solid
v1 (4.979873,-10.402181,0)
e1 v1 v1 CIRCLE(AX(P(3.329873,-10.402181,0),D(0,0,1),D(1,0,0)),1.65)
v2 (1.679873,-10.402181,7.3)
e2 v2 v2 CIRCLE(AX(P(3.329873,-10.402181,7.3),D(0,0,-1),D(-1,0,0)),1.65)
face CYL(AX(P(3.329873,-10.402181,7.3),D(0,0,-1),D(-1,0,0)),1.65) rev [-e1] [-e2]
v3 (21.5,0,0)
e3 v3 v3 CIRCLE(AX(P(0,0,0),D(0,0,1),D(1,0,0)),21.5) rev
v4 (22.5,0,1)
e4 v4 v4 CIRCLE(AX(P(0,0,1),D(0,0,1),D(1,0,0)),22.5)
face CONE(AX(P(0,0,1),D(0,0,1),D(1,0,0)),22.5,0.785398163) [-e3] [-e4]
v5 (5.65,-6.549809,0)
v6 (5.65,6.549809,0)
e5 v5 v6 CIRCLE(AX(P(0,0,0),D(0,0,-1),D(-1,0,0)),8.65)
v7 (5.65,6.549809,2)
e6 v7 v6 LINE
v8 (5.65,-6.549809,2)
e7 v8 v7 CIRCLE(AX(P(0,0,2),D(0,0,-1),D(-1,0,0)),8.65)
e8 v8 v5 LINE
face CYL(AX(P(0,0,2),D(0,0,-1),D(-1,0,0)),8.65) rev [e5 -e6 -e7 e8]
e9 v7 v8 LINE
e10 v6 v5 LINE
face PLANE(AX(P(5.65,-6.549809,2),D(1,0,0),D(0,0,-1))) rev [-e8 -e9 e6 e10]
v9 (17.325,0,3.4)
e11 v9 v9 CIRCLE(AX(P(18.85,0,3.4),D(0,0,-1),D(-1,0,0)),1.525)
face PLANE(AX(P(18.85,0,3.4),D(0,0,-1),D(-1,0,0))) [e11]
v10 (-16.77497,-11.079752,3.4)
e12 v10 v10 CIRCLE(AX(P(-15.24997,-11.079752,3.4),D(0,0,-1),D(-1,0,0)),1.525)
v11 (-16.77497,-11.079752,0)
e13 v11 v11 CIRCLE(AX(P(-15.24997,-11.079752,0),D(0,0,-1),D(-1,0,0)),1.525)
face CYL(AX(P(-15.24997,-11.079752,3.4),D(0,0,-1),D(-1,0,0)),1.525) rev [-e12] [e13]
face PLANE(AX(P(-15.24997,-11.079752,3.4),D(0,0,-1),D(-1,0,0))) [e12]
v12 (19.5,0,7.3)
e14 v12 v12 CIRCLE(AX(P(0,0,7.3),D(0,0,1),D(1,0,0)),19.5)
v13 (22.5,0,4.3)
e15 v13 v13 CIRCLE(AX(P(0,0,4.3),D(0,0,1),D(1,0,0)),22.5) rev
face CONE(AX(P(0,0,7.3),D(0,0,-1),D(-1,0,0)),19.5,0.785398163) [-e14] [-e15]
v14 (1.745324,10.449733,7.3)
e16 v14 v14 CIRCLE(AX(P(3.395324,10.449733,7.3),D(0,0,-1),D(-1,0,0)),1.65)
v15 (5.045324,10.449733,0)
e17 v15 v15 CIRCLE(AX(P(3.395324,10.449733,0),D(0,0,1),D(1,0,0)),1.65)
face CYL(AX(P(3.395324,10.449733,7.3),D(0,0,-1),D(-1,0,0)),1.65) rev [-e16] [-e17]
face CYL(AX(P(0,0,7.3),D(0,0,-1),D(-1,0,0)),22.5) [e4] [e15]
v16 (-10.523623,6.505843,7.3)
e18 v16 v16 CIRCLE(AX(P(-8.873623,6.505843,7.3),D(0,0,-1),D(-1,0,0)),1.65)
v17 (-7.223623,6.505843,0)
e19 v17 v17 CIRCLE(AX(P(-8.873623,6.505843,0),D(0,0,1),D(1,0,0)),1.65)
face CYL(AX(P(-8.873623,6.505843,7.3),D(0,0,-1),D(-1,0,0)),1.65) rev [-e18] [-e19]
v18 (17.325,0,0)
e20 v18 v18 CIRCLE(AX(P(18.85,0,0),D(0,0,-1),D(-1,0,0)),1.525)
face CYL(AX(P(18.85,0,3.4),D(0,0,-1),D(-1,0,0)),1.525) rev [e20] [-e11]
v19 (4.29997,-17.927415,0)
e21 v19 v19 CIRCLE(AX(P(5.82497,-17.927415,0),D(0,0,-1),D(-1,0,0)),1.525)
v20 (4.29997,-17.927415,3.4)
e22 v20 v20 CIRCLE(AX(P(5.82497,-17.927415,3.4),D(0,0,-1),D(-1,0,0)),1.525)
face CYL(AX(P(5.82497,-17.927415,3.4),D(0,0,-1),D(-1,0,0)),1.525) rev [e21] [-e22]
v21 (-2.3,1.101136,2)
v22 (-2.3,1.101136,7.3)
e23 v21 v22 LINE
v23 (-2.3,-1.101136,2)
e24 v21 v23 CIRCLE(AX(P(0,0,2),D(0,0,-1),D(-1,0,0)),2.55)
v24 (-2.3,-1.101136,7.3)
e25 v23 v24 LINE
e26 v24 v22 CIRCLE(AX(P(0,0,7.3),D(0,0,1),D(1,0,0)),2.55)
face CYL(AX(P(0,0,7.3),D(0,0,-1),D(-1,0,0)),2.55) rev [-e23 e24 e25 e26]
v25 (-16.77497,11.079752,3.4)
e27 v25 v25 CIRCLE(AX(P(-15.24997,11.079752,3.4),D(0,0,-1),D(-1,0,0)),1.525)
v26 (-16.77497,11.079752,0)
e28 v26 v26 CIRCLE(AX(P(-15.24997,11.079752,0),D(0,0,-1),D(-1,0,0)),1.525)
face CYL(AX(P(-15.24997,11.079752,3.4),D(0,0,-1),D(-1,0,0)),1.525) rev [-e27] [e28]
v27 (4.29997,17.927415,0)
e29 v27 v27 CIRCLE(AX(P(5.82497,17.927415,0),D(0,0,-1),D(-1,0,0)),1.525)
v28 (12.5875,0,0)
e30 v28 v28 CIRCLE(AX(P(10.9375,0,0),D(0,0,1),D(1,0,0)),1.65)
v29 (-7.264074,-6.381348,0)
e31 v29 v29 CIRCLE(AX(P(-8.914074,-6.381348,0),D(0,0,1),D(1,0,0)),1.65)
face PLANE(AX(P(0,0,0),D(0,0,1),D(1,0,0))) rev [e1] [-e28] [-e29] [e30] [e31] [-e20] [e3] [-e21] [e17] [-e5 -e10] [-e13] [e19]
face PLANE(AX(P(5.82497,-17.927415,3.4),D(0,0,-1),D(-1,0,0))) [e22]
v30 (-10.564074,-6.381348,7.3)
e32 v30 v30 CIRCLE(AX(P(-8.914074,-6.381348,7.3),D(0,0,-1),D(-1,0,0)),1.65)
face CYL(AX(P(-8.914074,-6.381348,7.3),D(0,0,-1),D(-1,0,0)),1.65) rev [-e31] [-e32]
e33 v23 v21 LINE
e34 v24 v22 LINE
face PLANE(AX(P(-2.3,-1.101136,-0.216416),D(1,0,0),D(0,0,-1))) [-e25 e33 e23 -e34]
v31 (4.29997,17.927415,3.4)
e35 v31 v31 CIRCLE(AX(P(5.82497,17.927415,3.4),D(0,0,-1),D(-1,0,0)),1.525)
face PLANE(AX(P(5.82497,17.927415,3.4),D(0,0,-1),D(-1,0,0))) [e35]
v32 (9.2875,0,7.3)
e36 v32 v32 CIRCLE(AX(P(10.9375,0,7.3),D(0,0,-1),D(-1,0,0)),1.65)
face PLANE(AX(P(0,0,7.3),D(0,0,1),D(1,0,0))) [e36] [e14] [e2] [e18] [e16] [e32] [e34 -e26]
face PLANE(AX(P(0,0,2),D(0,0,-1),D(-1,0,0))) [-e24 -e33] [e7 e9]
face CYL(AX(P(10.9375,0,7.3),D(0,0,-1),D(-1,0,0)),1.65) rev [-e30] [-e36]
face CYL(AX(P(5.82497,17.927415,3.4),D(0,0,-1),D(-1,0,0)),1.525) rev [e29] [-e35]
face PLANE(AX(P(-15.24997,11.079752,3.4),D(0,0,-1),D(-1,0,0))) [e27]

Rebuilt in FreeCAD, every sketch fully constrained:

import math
import FreeCAD as App
import Part
import Sketcher
from FreeCAD import Vector
Q = App.Units.Quantity


def edges_at(feature, points):
    """Names of the edges that pass closest to the given points."""
    edges = feature.Shape.Edges
    near = lambda p: min(range(len(edges)), key=lambda i: edges[i].distToShape(Part.Vertex(*p))[0])
    return sorted({f"Edge{near(p) + 1}" for p in points})

doc = App.newDocument("Part")
params = doc.addObject("Spreadsheet::Sheet", "Params")
for row, (alias, value) in enumerate([
    ("sketch1_diameter", "45 mm"),
    ("sketch1_diameter2", "5.1 mm"),
    ("pad1_length", "7.3 mm"),
    ("sketch2_diameter", "3.05 mm"),
    ("pocket1_length", "3.4 mm"),
    ("sketch3_diameter", "5.1 mm"),
    ("sketch3_diameter2", "3.3 mm"),
    ("chamfer_size", "1 mm"),
    ("chamfer2_size", "3 mm"),
    ("sketch4_radius", "8.65 mm"),
    ("pocket3_length", "2 mm"),
    ("sketch5_radius", "2.55 mm"),
    ("pad2_length", "5.3 mm"),
], start=1):
    params.set(f"A{row}", alias)
    params.set(f"B{row}", "=" + value)
    params.setAlias(f"B{row}", alias)

body = doc.addObject("PartDesign::Body", "Body")

sketch1 = doc.addObject("Sketcher::SketchObject", "Sketch")
body.addObject(sketch1)
sketch1.AttachmentSupport = (doc.XY_Plane, [""])
sketch1.MapMode = "FlatFace"
sketch1.addGeometry([
    Part.Circle(Vector(0, 0, 0), Vector(0, 0, 1), 22.5),
    Part.Circle(Vector(0, 0, 0), Vector(0, 0, 1), 2.55),
], False)
sketch1.addConstraint([
    Sketcher.Constraint("Coincident", 0, 3, -1, 1),
    Sketcher.Constraint("Coincident", 1, 3, -1, 1),
    Sketcher.Constraint("Diameter", 0, Q("45 mm")),
    Sketcher.Constraint("Diameter", 1, Q("5.1 mm")),
])
sketch1.setExpression("Constraints[2]", "Params.sketch1_diameter")
sketch1.setExpression("Constraints[3]", "Params.sketch1_diameter2")
pad1 = doc.addObject("PartDesign::Pad", "Pad")
body.addObject(pad1)
pad1.Profile = sketch1
pad1.setExpression("Length", "Params.pad1_length")

sketch2 = doc.addObject("Sketcher::SketchObject", "Sketch001")
body.addObject(sketch2)
sketch2.AttachmentSupport = (doc.XY_Plane, [""])
sketch2.MapMode = "FlatFace"
sketch2.addGeometry([
    Part.Circle(Vector(18.85, 0, 0), Vector(0, 0, 1), 1.525),
    Part.Circle(Vector(5.82497, 17.927415, 0), Vector(0, 0, 1), 1.525),
    Part.Circle(Vector(-15.24997, 11.079752, 0), Vector(0, 0, 1), 1.525),
    Part.Circle(Vector(-15.24997, -11.079752, 0), Vector(0, 0, 1), 1.525),
    Part.Circle(Vector(5.82497, -17.927415, 0), Vector(0, 0, 1), 1.525),
], False)
sketch2.addConstraint([
    Sketcher.Constraint("Equal", 0, 1),
    Sketcher.Constraint("Equal", 1, 2),
    Sketcher.Constraint("Equal", 2, 3),
    Sketcher.Constraint("Equal", 3, 4),
    Sketcher.Constraint("Symmetric", 2, 3, 3, 3, -1),
    Sketcher.Constraint("Symmetric", 1, 3, 4, 3, -1),
    Sketcher.Constraint("PointOnObject", 0, 3, -1),
    Sketcher.Constraint("Diameter", 0, Q("3.05 mm")),
    Sketcher.Constraint("DistanceX", -1, 1, 0, 3, Q("18.85 mm")),
    Sketcher.Constraint("DistanceX", -1, 1, 1, 3, Q("5.82497 mm")),
    Sketcher.Constraint("DistanceX", 2, 3, -1, 1, Q("15.24997 mm")),
    Sketcher.Constraint("DistanceY", 4, 3, 1, 3, Q("35.854831 mm")),
    Sketcher.Constraint("DistanceY", -1, 1, 2, 3, Q("11.079752 mm")),
])
sketch2.setExpression("Constraints[7]", "Params.sketch2_diameter")
pocket1 = doc.addObject("PartDesign::Pocket", "Pocket")
body.addObject(pocket1)
pocket1.Profile = sketch2
pocket1.setExpression("Length", "Params.pocket1_length")
pocket1.Reversed = True

sketch3 = doc.addObject("Sketcher::SketchObject", "Sketch002")
body.addObject(sketch3)
sketch3.AttachmentSupport = (doc.XY_Plane, [""])
sketch3.MapMode = "FlatFace"
sketch3.addGeometry([
    Part.Circle(Vector(0, 0, 0), Vector(0, 0, 1), 2.55),
    Part.Circle(Vector(10.9375, 0, 0), Vector(0, 0, 1), 1.65),
    Part.Circle(Vector(3.395324, 10.449733, 0), Vector(0, 0, 1), 1.65),
    Part.Circle(Vector(-8.873623, 6.505843, 0), Vector(0, 0, 1), 1.65),
    Part.Circle(Vector(-8.914074, -6.381348, 0), Vector(0, 0, 1), 1.65),
    Part.Circle(Vector(3.329873, -10.402181, 0), Vector(0, 0, 1), 1.65),
], False)
sketch3.addConstraint([
    Sketcher.Constraint("Coincident", 0, 3, -1, 1),
    Sketcher.Constraint("Equal", 1, 2),
    Sketcher.Constraint("Equal", 2, 3),
    Sketcher.Constraint("Equal", 3, 4),
    Sketcher.Constraint("Equal", 4, 5),
    Sketcher.Constraint("PointOnObject", 1, 3, -1),
    Sketcher.Constraint("Diameter", 0, Q("5.1 mm")),
    Sketcher.Constraint("Diameter", 1, Q("3.3 mm")),
    Sketcher.Constraint("DistanceX", -1, 1, 1, 3, Q("10.9375 mm")),
    Sketcher.Constraint("DistanceX", 4, 3, 2, 3, Q("12.309398 mm")),
    Sketcher.Constraint("DistanceY", 4, 3, -1, 1, Q("6.381348 mm")),
    Sketcher.Constraint("DistanceY", 5, 3, -1, 1, Q("10.402181 mm")),
    Sketcher.Constraint("DistanceY", 3, 3, 2, 3, Q("3.94389 mm")),
    Sketcher.Constraint("DistanceX", 4, 3, 3, 3, Q("0.040451 mm")),
    Sketcher.Constraint("DistanceY", 4, 3, 3, 3, Q("12.887192 mm")),
    Sketcher.Constraint("DistanceX", 5, 3, 2, 3, Q("0.065451 mm")),
    Sketcher.Constraint("DistanceX", -1, 1, 2, 3, Q("3.395324 mm")),
])
sketch3.setExpression("Constraints[6]", "Params.sketch3_diameter")
sketch3.setExpression("Constraints[7]", "Params.sketch3_diameter2")
pocket2 = doc.addObject("PartDesign::Pocket", "Pocket001")
body.addObject(pocket2)
pocket2.Profile = sketch3
pocket2.Type = "ThroughAll"
pocket2.Midplane = True
doc.recompute()

chamfer = doc.addObject("PartDesign::Chamfer", "Chamfer")
body.addObject(chamfer)
chamfer.Base = (pocket2, edges_at(pocket2, [(-22.5, 0, 0)]))
chamfer.setExpression("Size", "Params.chamfer_size")
doc.recompute()

chamfer2 = doc.addObject("PartDesign::Chamfer", "Chamfer001")
body.addObject(chamfer2)
chamfer2.Base = (chamfer, edges_at(chamfer, [(-22.5, 0, 7.3)]))
chamfer2.setExpression("Size", "Params.chamfer2_size")

sketch4 = doc.addObject("Sketcher::SketchObject", "Sketch003")
body.addObject(sketch4)
sketch4.AttachmentSupport = (doc.XY_Plane, [""])
sketch4.MapMode = "FlatFace"
sketch4.addGeometry([
    Part.LineSegment(Vector(5.65, 6.549809, 0), Vector(5.65, -6.549809, 0)),
    Part.ArcOfCircle(Part.Circle(Vector(0, 0, 0), Vector(0, 0, 1), 8.65), math.radians(49.21827), math.radians(310.78173)),
], False)
sketch4.addConstraint([
    Sketcher.Constraint("Coincident", 0, 1, 1, 1),
    Sketcher.Constraint("Coincident", 1, 2, 0, 2),
    Sketcher.Constraint("Vertical", 0),
    Sketcher.Constraint("Coincident", 1, 3, -1, 1),
    Sketcher.Constraint("Radius", 1, Q("8.65 mm")),
    Sketcher.Constraint("DistanceX", -1, 1, 0, 1, Q("5.65 mm")),
])
sketch4.setExpression("Constraints[4]", "Params.sketch4_radius")
pocket3 = doc.addObject("PartDesign::Pocket", "Pocket002")
body.addObject(pocket3)
pocket3.Profile = sketch4
pocket3.setExpression("Length", "Params.pocket3_length")
pocket3.Reversed = True

sketch5 = doc.addObject("Sketcher::SketchObject", "Sketch004")
body.addObject(sketch5)
sketch5.AttachmentSupport = (doc.XY_Plane, [""])
sketch5.MapMode = "FlatFace"
sketch5.AttachmentOffset = App.Placement(Vector(0, 0, 2), App.Rotation())
sketch5.addGeometry([
    Part.LineSegment(Vector(-2.3, -1.101136, 0), Vector(-2.3, 1.101136, 0)),
    Part.ArcOfCircle(Part.Circle(Vector(0, 0, 0), Vector(0, 0, 1), 2.55), math.radians(154.417013), math.radians(205.582987)),
], False)
sketch5.addConstraint([
    Sketcher.Constraint("Coincident", 0, 1, 1, 2),
    Sketcher.Constraint("Coincident", 1, 1, 0, 2),
    Sketcher.Constraint("Vertical", 0),
    Sketcher.Constraint("Coincident", 1, 3, -1, 1),
    Sketcher.Constraint("Radius", 1, Q("2.55 mm")),
    Sketcher.Constraint("DistanceX", 0, 1, -1, 1, Q("2.3 mm")),
])
sketch5.setExpression("Constraints[4]", "Params.sketch5_radius")
pad2 = doc.addObject("PartDesign::Pad", "Pad001")
body.addObject(pad2)
pad2.Profile = sketch5
pad2.setExpression("Length", "Params.pad2_length")

doc.recompute()
